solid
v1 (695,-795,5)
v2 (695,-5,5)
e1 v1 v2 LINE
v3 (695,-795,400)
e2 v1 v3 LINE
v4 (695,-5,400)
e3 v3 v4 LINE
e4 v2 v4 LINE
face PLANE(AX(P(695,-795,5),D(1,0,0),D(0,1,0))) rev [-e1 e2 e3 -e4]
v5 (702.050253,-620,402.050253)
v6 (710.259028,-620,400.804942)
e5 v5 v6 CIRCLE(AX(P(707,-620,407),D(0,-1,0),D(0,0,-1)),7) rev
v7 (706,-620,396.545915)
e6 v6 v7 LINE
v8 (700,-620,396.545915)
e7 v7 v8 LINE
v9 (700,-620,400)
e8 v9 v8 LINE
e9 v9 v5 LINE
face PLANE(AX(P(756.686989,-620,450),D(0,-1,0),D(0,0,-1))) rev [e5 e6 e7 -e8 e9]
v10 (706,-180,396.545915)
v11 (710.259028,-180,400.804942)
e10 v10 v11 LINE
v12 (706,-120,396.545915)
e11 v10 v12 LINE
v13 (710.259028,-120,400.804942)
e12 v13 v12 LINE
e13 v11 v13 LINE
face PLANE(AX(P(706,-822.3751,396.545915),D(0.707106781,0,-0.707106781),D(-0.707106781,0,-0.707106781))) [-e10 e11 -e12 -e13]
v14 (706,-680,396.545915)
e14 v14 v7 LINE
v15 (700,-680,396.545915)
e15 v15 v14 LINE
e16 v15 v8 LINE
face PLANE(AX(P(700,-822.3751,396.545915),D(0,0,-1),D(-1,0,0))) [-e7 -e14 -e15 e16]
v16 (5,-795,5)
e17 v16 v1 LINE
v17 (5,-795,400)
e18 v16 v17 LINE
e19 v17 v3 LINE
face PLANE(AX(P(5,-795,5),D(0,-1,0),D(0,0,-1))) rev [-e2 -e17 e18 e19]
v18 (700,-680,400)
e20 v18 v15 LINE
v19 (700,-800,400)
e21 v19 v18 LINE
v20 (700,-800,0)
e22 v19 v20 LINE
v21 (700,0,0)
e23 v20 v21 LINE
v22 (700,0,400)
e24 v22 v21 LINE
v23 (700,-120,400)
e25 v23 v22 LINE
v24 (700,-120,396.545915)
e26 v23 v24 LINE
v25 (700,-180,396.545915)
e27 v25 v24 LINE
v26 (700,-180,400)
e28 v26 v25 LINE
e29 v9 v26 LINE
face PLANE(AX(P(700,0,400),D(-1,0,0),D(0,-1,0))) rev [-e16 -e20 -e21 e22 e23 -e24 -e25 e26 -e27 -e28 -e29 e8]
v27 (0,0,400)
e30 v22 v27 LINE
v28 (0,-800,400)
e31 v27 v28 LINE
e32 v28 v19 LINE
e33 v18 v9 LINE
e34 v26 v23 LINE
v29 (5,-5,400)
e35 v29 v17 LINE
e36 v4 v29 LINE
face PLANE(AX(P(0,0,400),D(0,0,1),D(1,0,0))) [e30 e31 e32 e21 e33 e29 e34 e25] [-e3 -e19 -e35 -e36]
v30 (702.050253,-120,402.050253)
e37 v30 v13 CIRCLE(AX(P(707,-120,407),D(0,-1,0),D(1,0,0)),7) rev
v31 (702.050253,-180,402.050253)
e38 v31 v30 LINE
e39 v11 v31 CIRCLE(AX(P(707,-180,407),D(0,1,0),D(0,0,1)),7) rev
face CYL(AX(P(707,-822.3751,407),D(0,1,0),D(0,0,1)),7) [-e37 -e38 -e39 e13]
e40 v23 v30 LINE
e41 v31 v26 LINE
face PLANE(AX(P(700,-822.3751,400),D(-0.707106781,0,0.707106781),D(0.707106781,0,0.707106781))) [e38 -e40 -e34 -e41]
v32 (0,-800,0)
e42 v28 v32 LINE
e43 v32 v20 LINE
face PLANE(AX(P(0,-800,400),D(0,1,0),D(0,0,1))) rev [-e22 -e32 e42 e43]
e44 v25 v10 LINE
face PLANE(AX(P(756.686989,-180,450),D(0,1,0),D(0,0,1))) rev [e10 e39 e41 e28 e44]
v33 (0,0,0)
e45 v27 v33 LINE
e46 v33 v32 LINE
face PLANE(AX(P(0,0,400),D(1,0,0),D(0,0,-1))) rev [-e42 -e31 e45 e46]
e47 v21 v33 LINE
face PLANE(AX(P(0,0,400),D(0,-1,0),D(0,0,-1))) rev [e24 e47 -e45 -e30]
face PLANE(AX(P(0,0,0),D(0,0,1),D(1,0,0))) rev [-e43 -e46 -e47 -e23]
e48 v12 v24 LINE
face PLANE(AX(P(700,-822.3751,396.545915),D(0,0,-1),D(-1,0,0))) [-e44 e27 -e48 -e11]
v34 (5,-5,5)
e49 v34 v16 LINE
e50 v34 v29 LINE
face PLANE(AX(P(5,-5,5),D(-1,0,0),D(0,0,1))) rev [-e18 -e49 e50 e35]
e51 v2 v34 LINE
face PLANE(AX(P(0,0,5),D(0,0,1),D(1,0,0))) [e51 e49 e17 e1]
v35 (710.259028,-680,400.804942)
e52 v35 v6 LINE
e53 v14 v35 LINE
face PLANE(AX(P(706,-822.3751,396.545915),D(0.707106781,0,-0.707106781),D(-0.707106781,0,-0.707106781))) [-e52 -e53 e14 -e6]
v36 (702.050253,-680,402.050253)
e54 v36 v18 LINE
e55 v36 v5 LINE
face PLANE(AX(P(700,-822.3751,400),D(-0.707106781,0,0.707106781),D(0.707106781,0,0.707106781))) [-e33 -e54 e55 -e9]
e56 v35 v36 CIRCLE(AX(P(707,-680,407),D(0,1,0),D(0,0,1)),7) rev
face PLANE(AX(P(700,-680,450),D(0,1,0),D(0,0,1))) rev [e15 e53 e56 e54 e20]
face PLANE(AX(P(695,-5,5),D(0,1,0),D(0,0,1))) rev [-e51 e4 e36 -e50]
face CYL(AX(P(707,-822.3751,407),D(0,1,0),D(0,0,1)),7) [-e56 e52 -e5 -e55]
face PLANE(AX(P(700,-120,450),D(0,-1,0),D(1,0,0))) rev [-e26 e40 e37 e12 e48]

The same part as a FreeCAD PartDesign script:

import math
import FreeCAD as App
import Part
import Sketcher
from FreeCAD import Vector
Q = App.Units.Quantity

doc = App.newDocument("Part")
body = doc.addObject("PartDesign::Body", "Body")

# Sketch on XY plane
sketch1 = body.newObject("Sketcher::SketchObject", "Sketch")
sketch1.AttachmentSupport = (doc.getObject("XY_Plane"), [""])
sketch1.MapMode = "FlatFace"
sketch1.addGeometry(Part.LineSegment(Vector(0, 0, 0), Vector(0, -800, 0)), False)
sketch1.addGeometry(Part.LineSegment(Vector(0, -800, 0), Vector(700, -800, 0)), False)
sketch1.addGeometry(Part.LineSegment(Vector(700, -800, 0), Vector(700, 0, 0)), False)
sketch1.addGeometry(Part.LineSegment(Vector(700, 0, 0), Vector(0, 0, 0)), False)
sketch1.addConstraint(Sketcher.Constraint("Coincident", 0, 2, 1, 1))
sketch1.addConstraint(Sketcher.Constraint("Coincident", 1, 2, 2, 1))
sketch1.addConstraint(Sketcher.Constraint("Coincident", 2, 2, 3, 1))
sketch1.addConstraint(Sketcher.Constraint("Coincident", 3, 2, 0, 1))
sketch1.addConstraint(Sketcher.Constraint("Vertical", 0))
sketch1.addConstraint(Sketcher.Constraint("Horizontal", 1))
sketch1.addConstraint(Sketcher.Constraint("Vertical", 2))
sketch1.addConstraint(Sketcher.Constraint("Horizontal", 3))
sketch1.addConstraint(Sketcher.Constraint("Coincident", 3, 2, -1, 1))
sketch1.addConstraint(Sketcher.Constraint("DistanceX", 1, 1, 1, 2, 700.0))
sketch1.addConstraint(Sketcher.Constraint("DistanceY", 0, 2, 0, 1, 800.0))
pad1 = body.newObject("PartDesign::Pad", "Pad")
pad1.Profile = sketch1
pad1.Length = 400

# Sketch on XY plane
sketch2 = body.newObject("Sketcher::SketchObject", "Sketch001")
sketch2.AttachmentSupport = (doc.getObject("XY_Plane"), [""])
sketch2.MapMode = "FlatFace"
sketch2.AttachmentOffset = App.Placement(Vector(0, 0, 400), App.Rotation())
sketch2.addGeometry(Part.LineSegment(Vector(5, -5, 0), Vector(5, -795, 0)), False)
sketch2.addGeometry(Part.LineSegment(Vector(5, -795, 0), Vector(695, -795, 0)), False)
sketch2.addGeometry(Part.LineSegment(Vector(695, -795, 0), Vector(695, -5, 0)), False)
sketch2.addGeometry(Part.LineSegment(Vector(695, -5, 0), Vector(5, -5, 0)), False)
sketch2.addConstraint(Sketcher.Constraint("Coincident", 0, 2, 1, 1))
sketch2.addConstraint(Sketcher.Constraint("Coincident", 1, 2, 2, 1))
sketch2.addConstraint(Sketcher.Constraint("Coincident", 2, 2, 3, 1))
sketch2.addConstraint(Sketcher.Constraint("Coincident", 3, 2, 0, 1))
sketch2.addConstraint(Sketcher.Constraint("Vertical", 0))
sketch2.addConstraint(Sketcher.Constraint("Horizontal", 1))
sketch2.addConstraint(Sketcher.Constraint("Vertical", 2))
sketch2.addConstraint(Sketcher.Constraint("Horizontal", 3))
sketch2.addConstraint(Sketcher.Constraint("DistanceX", 1, 1, 1, 2, 690.0))
sketch2.addConstraint(Sketcher.Constraint("DistanceY", 0, 2, 0, 1, 790.0))
sketch2.addConstraint(Sketcher.Constraint("DistanceX", -1, 1, 0, 2, 5.0))
sketch2.addConstraint(Sketcher.Constraint("DistanceY", 0, 2, -1, 1, 795.0))
pocket1 = body.newObject("PartDesign::Pocket", "Pocket")
pocket1.Profile = sketch2
pocket1.Length = 395

# Sketch on XZ plane
sketch3 = body.newObject("Sketcher::SketchObject", "Sketch002")
sketch3.AttachmentSupport = (doc.getObject("XZ_Plane"), [""])
sketch3.MapMode = "FlatFace"
sketch3.addGeometry(Part.LineSegment(Vector(706, 396.545915, 0), Vector(700, 396.545915, 0)), False)
sketch3.addGeometry(Part.LineSegment(Vector(700, 396.545915, 0), Vector(700, 400, 0)), False)
sketch3.addGeometry(Part.LineSegment(Vector(700, 400, 0), Vector(702.050253, 402.050253, 0)), False)
sketch3.addGeometry(Part.ArcOfCircle(Part.Circle(Vector(707, 407, 0), Vector(0, 0, 1), 7), math.radians(-62.252533), math.radians(225)), False)
sketch3.addGeometry(Part.LineSegment(Vector(710.259028, 400.804942, 0), Vector(706, 396.545915, 0)), False)
sketch3.addConstraint(Sketcher.Constraint("Coincident", 0, 2, 1, 1))
sketch3.addConstraint(Sketcher.Constraint("Coincident", 1, 2, 2, 1))
sketch3.addConstraint(Sketcher.Constraint("Coincident", 2, 2, 3, 2))
sketch3.addConstraint(Sketcher.Constraint("Coincident", 3, 1, 4, 1))
sketch3.addConstraint(Sketcher.Constraint("Coincident", 4, 2, 0, 1))
sketch3.addConstraint(Sketcher.Constraint("Horizontal", 0))
sketch3.addConstraint(Sketcher.Constraint("Vertical", 1))
sketch3.addConstraint(Sketcher.Constraint("Parallel", 2, 4))
sketch3.addConstraint(Sketcher.Constraint("Radius", 3, 7.0))
sketch3.addConstraint(Sketcher.Constraint("DistanceX", 0, 2, 0, 1, 6.0))
sketch3.addConstraint(Sketcher.Constraint("Angle", 2, Q("45 deg")))
sketch3.addConstraint(Sketcher.Constraint("DistanceX", -1, 1, 3, 3, 707.0))
sketch3.addConstraint(Sketcher.Constraint("DistanceY", -1, 1, 3, 3, 407.0))
sketch3.addConstraint(Sketcher.Constraint("DistanceX", -1, 1, 0, 2, 700.0))
sketch3.addConstraint(Sketcher.Constraint("DistanceY", -1, 1, 1, 2, 400.0))
sketch3.addConstraint(Sketcher.Constraint("DistanceY", 1, 1, 1, 2, 3.454085))
pad2 = body.newObject("PartDesign::Pad", "Pad001")
pad2.Profile = sketch3
pad2.Length = 800

# Sketch on XY plane
sketch4 = body.newObject("Sketcher::SketchObject", "Sketch003")
sketch4.AttachmentSupport = (doc.getObject("XY_Plane"), [""])
sketch4.MapMode = "FlatFace"
sketch4.addGeometry(Part.LineSegment(Vector(756.686989, 0, 0), Vector(756.686989, -120, 0)), False)
sketch4.addGeometry(Part.LineSegment(Vector(756.686989, -120, 0), Vector(700, -120, 0)), False)
sketch4.addGeometry(Part.LineSegment(Vector(700, -120, 0), Vector(700, 0, 0)), False)
sketch4.addGeometry(Part.LineSegment(Vector(700, 0, 0), Vector(756.686989, 0, 0)), False)
sketch4.addGeometry(Part.LineSegment(Vector(756.686989, -680, 0), Vector(756.686989, -800, 0)), False)
sketch4.addGeometry(Part.LineSegment(Vector(756.686989, -800, 0), Vector(700, -800, 0)), False)
sketch4.addGeometry(Part.LineSegment(Vector(700, -800, 0), Vector(700, -680, 0)), False)
sketch4.addGeometry(Part.LineSegment(Vector(700, -680, 0), Vector(756.686989, -680, 0)), False)
sketch4.addGeometry(Part.LineSegment(Vector(756.686989, -180, 0), Vector(756.686989, -620, 0)), False)
sketch4.addGeometry(Part.LineSegment(Vector(756.686989, -620, 0), Vector(700, -620, 0)), False)
sketch4.addGeometry(Part.LineSegment(Vector(700, -620, 0), Vector(700, -180, 0)), False)
sketch4.addGeometry(Part.LineSegment(Vector(700, -180, 0), Vector(756.686989, -180, 0)), False)
sketch4.addConstraint(Sketcher.Constraint("Coincident", 0, 2, 1, 1))
sketch4.addConstraint(Sketcher.Constraint("Coincident", 1, 2, 2, 1))
sketch4.addConstraint(Sketcher.Constraint("Coincident", 2, 2, 3, 1))
sketch4.addConstraint(Sketcher.Constraint("Coincident", 3, 2, 0, 1))
sketch4.addConstraint(Sketcher.Constraint("Coincident", 4, 2, 5, 1))
sketch4.addConstraint(Sketcher.Constraint("Coincident", 5, 2, 6, 1))
sketch4.addConstraint(Sketcher.Constraint("Coincident", 6, 2, 7, 1))
sketch4.addConstraint(Sketcher.Constraint("Coincident", 7, 2, 4, 1))
sketch4.addConstraint(Sketcher.Constraint("Coincident", 8, 2, 9, 1))
sketch4.addConstraint(Sketcher.Constraint("Coincident", 9, 2, 10, 1))
sketch4.addConstraint(Sketcher.Constraint("Coincident", 10, 2, 11, 1))
sketch4.addConstraint(Sketcher.Constraint("Coincident", 11, 2, 8, 1))
sketch4.addConstraint(Sketcher.Constraint("Vertical", 0))
sketch4.addConstraint(Sketcher.Constraint("Horizontal", 1))
sketch4.addConstraint(Sketcher.Constraint("Vertical", 2))
sketch4.addConstraint(Sketcher.Constraint("Horizontal", 3))
sketch4.addConstraint(Sketcher.Constraint("Vertical", 4))
sketch4.addConstraint(Sketcher.Constraint("Horizontal", 5))
sketch4.addConstraint(Sketcher.Constraint("Vertical", 6))
sketch4.addConstraint(Sketcher.Constraint("Horizontal", 7))
sketch4.addConstraint(Sketcher.Constraint("Vertical", 8))
sketch4.addConstraint(Sketcher.Constraint("Horizontal", 9))
sketch4.addConstraint(Sketcher.Constraint("Vertical", 10))
sketch4.addConstraint(Sketcher.Constraint("Horizontal", 11))
sketch4.addConstraint(Sketcher.Constraint("PointOnObject", 2, 2, -1))
sketch4.addConstraint(Sketcher.Constraint("Vertical", 3, 2, 4, 2))
sketch4.addConstraint(Sketcher.Constraint("Vertical", 2, 2, 5, 2))
sketch4.addConstraint(Sketcher.Constraint("Vertical", 7, 2, 8, 2))
sketch4.addConstraint(Sketcher.Constraint("Vertical", 6, 2, 9, 2))
sketch4.addConstraint(Sketcher.Constraint("Equal", 2, 4))
sketch4.addConstraint(Sketcher.Constraint("DistanceY", 0, 2, 0, 1, 120.0))
sketch4.addConstraint(Sketcher.Constraint("DistanceY", 8, 2, 8, 1, 440.0))
sketch4.addConstraint(Sketcher.Constraint("DistanceX", -1, 1, 1, 2, 700.0))
sketch4.addConstraint(Sketcher.Constraint("DistanceY", 4, 2, -1, 1, 800.0))
sketch4.addConstraint(Sketcher.Constraint("DistanceY", 8, 2, -1, 1, 620.0))
sketch4.addConstraint(Sketcher.Constraint("DistanceX", 1, 2, 1, 1, 56.686989))
pocket2 = body.newObject("PartDesign::Pocket", "Pocket001")
pocket2.Profile = sketch4
pocket2.Length = 450
pocket2.Reversed = True

doc.recompute()
